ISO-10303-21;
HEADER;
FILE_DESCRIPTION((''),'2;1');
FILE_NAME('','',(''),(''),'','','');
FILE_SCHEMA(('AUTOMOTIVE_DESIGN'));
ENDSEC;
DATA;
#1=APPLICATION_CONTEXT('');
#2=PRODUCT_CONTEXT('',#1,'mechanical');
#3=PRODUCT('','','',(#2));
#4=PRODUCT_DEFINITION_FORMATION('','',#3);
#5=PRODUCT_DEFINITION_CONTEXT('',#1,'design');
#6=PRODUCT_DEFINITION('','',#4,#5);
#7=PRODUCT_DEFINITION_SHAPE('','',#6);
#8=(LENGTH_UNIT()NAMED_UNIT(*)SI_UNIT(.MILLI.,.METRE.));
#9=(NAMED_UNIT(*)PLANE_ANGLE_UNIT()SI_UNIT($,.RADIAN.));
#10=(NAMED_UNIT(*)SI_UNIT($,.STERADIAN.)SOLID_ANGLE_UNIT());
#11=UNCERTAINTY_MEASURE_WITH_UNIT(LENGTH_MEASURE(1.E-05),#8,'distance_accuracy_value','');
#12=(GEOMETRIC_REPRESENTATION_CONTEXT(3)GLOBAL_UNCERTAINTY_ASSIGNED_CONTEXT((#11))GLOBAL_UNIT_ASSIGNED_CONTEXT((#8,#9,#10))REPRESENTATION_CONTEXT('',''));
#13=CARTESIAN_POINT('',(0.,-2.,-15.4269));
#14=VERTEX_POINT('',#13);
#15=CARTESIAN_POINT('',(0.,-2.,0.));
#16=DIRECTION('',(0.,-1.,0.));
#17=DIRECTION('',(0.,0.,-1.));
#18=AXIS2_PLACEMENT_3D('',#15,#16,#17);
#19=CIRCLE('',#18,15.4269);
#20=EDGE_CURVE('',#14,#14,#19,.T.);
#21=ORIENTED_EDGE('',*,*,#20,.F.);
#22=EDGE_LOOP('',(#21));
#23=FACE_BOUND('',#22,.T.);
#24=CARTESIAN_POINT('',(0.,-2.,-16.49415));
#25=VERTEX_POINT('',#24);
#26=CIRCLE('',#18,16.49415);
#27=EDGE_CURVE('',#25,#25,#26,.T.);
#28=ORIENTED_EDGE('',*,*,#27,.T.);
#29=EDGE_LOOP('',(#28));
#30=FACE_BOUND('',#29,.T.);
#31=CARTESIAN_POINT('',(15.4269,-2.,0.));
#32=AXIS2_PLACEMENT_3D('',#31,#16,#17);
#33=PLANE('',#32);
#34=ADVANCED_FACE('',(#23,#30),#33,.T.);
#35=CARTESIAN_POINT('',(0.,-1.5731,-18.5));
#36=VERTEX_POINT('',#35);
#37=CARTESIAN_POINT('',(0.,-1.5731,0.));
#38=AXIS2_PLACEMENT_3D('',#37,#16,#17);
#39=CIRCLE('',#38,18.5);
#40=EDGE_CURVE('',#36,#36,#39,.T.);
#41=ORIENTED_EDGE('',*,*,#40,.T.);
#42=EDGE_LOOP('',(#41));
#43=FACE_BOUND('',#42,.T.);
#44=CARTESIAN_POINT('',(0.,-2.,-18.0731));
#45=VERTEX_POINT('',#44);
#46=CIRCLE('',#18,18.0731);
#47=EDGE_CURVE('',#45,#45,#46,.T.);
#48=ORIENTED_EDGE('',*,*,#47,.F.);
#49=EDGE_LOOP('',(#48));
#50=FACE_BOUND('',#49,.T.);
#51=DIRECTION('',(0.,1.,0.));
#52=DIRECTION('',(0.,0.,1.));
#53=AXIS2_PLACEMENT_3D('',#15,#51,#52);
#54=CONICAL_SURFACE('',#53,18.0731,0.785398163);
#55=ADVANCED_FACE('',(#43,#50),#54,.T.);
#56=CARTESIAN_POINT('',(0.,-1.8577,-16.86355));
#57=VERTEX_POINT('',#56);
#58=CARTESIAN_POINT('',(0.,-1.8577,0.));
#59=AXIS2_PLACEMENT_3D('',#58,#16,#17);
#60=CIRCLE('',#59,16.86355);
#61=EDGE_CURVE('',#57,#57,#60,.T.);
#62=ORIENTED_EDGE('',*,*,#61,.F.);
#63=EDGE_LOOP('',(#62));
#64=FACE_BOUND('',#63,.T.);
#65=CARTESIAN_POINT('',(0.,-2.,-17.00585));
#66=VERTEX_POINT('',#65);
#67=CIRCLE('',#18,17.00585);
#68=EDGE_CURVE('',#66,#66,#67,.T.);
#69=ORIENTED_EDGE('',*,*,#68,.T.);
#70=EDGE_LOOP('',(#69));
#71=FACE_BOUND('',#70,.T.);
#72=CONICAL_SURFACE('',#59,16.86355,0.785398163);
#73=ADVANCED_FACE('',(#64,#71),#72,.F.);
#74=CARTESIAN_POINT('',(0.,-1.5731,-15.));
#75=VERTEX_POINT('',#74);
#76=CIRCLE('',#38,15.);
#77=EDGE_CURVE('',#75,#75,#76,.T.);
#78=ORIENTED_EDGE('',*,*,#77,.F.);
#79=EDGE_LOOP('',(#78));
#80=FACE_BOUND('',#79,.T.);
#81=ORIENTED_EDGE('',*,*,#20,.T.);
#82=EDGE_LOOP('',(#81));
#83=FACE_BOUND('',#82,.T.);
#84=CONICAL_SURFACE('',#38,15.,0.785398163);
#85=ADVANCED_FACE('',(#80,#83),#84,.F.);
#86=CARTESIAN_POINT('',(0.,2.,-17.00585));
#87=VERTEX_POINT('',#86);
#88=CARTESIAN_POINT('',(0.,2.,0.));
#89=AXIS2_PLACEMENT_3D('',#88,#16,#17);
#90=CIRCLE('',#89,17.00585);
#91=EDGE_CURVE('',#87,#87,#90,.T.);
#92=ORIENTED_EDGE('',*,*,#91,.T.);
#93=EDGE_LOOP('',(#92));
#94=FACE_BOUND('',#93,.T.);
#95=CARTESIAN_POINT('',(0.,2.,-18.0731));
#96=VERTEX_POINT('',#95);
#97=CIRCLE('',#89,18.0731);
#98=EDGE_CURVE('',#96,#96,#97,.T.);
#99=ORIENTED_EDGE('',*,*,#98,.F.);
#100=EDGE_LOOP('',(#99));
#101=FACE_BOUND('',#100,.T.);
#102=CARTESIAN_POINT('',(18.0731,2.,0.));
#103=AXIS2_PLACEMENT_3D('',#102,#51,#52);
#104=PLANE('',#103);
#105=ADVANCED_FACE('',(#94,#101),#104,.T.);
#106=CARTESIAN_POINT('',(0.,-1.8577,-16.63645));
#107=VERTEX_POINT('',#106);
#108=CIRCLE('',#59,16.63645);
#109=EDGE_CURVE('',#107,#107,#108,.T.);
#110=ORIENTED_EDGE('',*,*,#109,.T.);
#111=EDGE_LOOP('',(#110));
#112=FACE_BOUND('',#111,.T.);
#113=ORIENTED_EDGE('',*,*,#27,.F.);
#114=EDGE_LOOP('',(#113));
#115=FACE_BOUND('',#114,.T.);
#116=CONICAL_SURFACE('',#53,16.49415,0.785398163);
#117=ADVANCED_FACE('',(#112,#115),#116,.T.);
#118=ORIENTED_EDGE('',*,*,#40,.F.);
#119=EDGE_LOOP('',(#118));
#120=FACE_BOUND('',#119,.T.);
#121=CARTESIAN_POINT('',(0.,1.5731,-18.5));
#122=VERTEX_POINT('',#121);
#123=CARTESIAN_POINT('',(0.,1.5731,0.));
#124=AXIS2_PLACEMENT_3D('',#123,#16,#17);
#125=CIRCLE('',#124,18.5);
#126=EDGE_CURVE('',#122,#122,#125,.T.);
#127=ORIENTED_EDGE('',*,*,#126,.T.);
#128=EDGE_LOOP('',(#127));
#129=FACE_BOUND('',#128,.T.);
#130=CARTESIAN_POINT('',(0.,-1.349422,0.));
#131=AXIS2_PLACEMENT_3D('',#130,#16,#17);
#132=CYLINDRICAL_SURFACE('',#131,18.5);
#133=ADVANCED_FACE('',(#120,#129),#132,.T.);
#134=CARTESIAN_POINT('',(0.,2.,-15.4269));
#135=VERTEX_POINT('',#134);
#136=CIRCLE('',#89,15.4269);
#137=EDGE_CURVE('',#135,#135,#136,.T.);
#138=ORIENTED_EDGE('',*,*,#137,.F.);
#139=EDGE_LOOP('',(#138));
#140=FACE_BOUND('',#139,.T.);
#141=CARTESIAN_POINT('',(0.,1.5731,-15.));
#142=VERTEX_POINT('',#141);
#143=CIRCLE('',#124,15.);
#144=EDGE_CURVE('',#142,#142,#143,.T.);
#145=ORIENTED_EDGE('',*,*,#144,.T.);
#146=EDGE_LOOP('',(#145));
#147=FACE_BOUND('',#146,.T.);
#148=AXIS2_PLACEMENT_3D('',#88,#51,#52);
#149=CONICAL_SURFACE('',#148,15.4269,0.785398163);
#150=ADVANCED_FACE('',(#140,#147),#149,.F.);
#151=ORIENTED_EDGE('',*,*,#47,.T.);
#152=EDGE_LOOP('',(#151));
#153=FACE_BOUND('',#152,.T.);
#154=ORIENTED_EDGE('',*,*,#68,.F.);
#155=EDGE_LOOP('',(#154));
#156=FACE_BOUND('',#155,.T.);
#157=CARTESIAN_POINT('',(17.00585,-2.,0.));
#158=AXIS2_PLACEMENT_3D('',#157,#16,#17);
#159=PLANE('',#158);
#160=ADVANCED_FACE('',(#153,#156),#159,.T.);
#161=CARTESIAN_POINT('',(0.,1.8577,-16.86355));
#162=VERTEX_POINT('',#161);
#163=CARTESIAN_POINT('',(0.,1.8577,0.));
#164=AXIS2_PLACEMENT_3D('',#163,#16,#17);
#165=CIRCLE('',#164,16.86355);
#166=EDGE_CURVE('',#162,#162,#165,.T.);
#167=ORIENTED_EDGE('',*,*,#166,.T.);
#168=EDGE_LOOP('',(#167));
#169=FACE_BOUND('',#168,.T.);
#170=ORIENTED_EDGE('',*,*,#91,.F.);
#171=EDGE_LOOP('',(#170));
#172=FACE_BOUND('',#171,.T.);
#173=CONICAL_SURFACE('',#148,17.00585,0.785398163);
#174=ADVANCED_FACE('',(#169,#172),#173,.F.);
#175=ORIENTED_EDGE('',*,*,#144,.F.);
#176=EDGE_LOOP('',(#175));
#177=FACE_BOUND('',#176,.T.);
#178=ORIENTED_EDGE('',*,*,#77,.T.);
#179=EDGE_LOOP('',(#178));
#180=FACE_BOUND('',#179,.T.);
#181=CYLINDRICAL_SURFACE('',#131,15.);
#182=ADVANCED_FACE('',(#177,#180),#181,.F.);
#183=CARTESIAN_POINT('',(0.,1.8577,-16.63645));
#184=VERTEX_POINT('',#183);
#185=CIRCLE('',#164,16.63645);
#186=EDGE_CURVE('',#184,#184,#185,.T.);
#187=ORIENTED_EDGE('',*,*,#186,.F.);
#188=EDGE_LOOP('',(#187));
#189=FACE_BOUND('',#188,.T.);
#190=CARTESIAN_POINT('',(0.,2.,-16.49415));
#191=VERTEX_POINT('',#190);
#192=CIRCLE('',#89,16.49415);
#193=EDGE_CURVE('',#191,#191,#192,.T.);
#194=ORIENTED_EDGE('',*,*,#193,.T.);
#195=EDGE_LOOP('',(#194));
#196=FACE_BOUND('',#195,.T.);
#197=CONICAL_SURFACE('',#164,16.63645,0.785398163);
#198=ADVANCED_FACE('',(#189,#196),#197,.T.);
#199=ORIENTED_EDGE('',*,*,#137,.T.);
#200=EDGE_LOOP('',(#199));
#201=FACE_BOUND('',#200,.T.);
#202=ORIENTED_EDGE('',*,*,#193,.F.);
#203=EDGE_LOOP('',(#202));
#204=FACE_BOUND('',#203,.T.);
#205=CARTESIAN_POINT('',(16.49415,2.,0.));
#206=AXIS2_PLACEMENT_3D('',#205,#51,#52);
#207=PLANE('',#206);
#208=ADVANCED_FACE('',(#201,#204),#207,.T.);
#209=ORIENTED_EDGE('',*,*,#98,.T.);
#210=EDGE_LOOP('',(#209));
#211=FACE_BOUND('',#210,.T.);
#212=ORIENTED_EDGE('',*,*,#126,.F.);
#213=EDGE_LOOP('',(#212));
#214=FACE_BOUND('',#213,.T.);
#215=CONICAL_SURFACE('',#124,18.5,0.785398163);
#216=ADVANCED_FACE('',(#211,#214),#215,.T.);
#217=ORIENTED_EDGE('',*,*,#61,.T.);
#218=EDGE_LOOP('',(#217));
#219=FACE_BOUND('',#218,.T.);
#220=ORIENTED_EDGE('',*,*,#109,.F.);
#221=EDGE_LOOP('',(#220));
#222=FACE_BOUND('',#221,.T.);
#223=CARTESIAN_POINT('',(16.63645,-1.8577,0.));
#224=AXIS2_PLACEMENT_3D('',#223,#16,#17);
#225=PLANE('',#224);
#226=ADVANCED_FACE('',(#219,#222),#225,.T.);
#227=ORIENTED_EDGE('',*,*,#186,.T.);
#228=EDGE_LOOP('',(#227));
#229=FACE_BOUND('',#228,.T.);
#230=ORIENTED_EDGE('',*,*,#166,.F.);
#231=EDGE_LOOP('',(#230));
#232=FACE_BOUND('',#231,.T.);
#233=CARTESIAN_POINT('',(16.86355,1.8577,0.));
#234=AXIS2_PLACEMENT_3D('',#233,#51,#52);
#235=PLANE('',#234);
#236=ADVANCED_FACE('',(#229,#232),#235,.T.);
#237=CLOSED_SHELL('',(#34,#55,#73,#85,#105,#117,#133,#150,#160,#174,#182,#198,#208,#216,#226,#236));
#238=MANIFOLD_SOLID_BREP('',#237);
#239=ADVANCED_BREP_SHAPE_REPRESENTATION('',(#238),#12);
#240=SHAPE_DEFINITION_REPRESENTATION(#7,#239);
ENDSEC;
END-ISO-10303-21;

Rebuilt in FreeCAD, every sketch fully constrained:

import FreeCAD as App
import Part
import Sketcher
from FreeCAD import Vector
Q = App.Units.Quantity


def add_polygon(sketch, points):
    """Adds a closed chain of lines whose ends are joined by coincident constraints."""
    first, n = sketch.GeometryCount, len(points)
    for a, b in zip(points, points[1:] + points[:1]):
        sketch.addGeometry(Part.LineSegment(App.Vector(*a, 0), App.Vector(*b, 0)), False)
    for i in range(n):
        sketch.addConstraint(Sketcher.Constraint("Coincident", first + i, 2, first + (i + 1) % n, 1))

doc = App.newDocument("Part")
body = doc.addObject("PartDesign::Body", "Body")

sketch1 = body.newObject("Sketcher::SketchObject", "Sketch")
sketch1.AttachmentSupport = (doc.getObject("XY_Plane"), [""])
sketch1.MapMode = "FlatFace"
add_polygon(sketch1, [(15, 1.57), (15, -1.57), (15.43, -2), (16.49, -2), (16.64, -1.86), (16.86, -1.86), (17.01, -2), (18.07, -2), (18.5, -1.57), (18.5, 1.57), (18.07, 2), (17.01, 2), (16.86, 1.86), (16.64, 1.86), (16.49, 2), (15.43, 2)])
sketch1.addConstraint([
    Sketcher.Constraint("Vertical", 0),
    Sketcher.Constraint("Horizontal", 2),
    Sketcher.Constraint("Horizontal", 4),
    Sketcher.Constraint("Horizontal", 6),
    Sketcher.Constraint("Vertical", 8),
    Sketcher.Constraint("Horizontal", 10),
    Sketcher.Constraint("Horizontal", 12),
    Sketcher.Constraint("Horizontal", 14),
    Sketcher.Constraint("Symmetric", 6, 2, 9, 2, -1),
    Sketcher.Constraint("Symmetric", 4, 2, 11, 2, -1),
    Sketcher.Constraint("Symmetric", 2, 2, 13, 2, -1),
    Sketcher.Constraint("Perpendicular", 1, 3),
    Sketcher.Constraint("Perpendicular", 3, 5),
    Sketcher.Constraint("Perpendicular", 5, 7),
    Sketcher.Constraint("Perpendicular", 7, 9),
    Sketcher.Constraint("Perpendicular", 9, 11),
    Sketcher.Constraint("Perpendicular", 11, 13),
    Sketcher.Constraint("Perpendicular", 13, 15),
    Sketcher.Constraint("Horizontal", 2, 2, 5, 2),
    Sketcher.Constraint("Horizontal", 0, 2, 7, 2),
    Sketcher.Constraint("Horizontal", 8, 2, 15, 2),
    Sketcher.Constraint("Vertical", 5, 2, 10, 2),
    Sketcher.Constraint("Equal", 2, 6),
    Sketcher.Constraint("DistanceX", -1, 1, 0, 2, Q("15 mm")),
    Sketcher.Constraint("DistanceY", 1, 2, -1, 1, Q("2 mm")),
    Sketcher.Constraint("DistanceX", -1, 1, 7, 2, Q("18.5 mm")),
    Sketcher.Constraint("DistanceX", 4, 1, 4, 2, Q("0.2271 mm")),
    Sketcher.Constraint("DistanceY", 0, 2, 0, 1, Q("3.1462 mm")),
    Sketcher.Constraint("DistanceX", 2, 1, 2, 2, Q("1.06725 mm")),
])
revolution = body.newObject("PartDesign::Revolution", "Revolution")
revolution.Profile = sketch1
revolution.ReferenceAxis = (sketch1, ["V_Axis"])
revolution.Angle = 360

doc.recompute()
